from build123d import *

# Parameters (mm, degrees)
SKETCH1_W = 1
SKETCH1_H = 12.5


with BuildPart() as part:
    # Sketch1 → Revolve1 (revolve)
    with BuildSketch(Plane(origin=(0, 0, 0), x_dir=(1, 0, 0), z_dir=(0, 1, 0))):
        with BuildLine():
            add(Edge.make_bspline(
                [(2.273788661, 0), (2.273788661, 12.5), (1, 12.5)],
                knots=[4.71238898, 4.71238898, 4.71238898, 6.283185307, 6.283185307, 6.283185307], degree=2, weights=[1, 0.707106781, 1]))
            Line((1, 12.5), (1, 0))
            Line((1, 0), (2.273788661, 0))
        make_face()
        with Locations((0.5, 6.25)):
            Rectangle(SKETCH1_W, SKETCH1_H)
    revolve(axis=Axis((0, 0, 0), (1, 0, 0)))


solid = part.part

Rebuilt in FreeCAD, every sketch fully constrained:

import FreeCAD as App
import Part
import Sketcher

doc = App.newDocument("Part")
body = doc.addObject("PartDesign::Body", "Body")

# Sketch on XZ plane
sketch1 = body.newObject("Sketcher::SketchObject", "Sketch")
sketch1.AttachmentSupport = (doc.getObject("XZ_Plane"), [""])
sketch1.MapMode = "FlatFace"
sketch1.addGeometry([
    Part.BSplineCurve([App.Vector(2.273789, 0, 0), App.Vector(2.273789, -12.5, 0), App.Vector(1, -12.5, 0)], [3, 3], [4.71238898, 6.283185307], False, 2, [1, 0.707106781, 1], False),
    Part.LineSegment(App.Vector(1, -12.5, 0), App.Vector(0, -12.5, 0)),
    Part.LineSegment(App.Vector(0, -12.5, 0), App.Vector(0, 0, 0)),
    Part.LineSegment(App.Vector(0, 0, 0), App.Vector(2.273789, 0, 0)),
], False)
sketch1.addConstraint([
    Sketcher.Constraint("Block", 0),
    Sketcher.Constraint("Coincident", 0, 2, 1, 1),
    Sketcher.Constraint("Coincident", 1, 2, 2, 1),
    Sketcher.Constraint("Coincident", 2, 2, 3, 1),
    Sketcher.Constraint("Coincident", 3, 2, 0, 1),
    Sketcher.Constraint("Horizontal", 1),
    Sketcher.Constraint("Vertical", 2),
    Sketcher.Constraint("Horizontal", 3),
    Sketcher.Constraint("PointOnObject", 1, 2, -2),
])
revolution = body.newObject("PartDesign::Revolution", "Revolution")
revolution.Profile = sketch1
revolution.ReferenceAxis = (sketch1, ["H_Axis"])
revolution.Angle = 360

doc.recompute()
